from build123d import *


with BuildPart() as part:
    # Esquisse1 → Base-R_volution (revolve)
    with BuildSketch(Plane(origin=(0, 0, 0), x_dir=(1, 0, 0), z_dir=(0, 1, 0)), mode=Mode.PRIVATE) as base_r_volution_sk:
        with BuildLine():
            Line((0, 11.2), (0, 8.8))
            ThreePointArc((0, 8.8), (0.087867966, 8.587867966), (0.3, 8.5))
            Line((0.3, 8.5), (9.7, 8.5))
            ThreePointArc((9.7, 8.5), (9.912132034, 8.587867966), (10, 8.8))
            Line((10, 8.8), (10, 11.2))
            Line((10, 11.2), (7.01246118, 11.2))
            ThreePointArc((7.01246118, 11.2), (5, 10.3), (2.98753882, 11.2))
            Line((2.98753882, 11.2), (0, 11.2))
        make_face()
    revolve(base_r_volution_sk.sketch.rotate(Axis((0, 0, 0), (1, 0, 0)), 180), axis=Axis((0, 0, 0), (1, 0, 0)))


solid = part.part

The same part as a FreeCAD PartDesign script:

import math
import FreeCAD as App
import Part
import Sketcher
from FreeCAD import Vector
Q = App.Units.Quantity

doc = App.newDocument("Part")
body = doc.addObject("PartDesign::Body", "Body")

sketch1 = body.newObject("Sketcher::SketchObject", "Sketch")
sketch1.AttachmentSupport = (doc.getObject("XZ_Plane"), [""])
sketch1.MapMode = "FlatFace"
sketch1.addGeometry([
    Part.LineSegment(Vector(0, -11.2, 0), Vector(0, -8.8, 0)),
    Part.ArcOfCircle(Part.Circle(Vector(0.3, -8.8, 0), Vector(0, 0, 1), 0.3), math.radians(90), math.radians(180)),
    Part.LineSegment(Vector(0.3, -8.5, 0), Vector(9.7, -8.5, 0)),
    Part.ArcOfCircle(Part.Circle(Vector(9.7, -8.8, 0), Vector(0, 0, 1), 0.3), math.radians(0), math.radians(90)),
    Part.LineSegment(Vector(10, -8.8, 0), Vector(10, -11.2, 0)),
    Part.LineSegment(Vector(10, -11.2, 0), Vector(7.012461, -11.2, 0)),
    Part.ArcOfCircle(Part.Circle(Vector(5, -13, 0), Vector(0, 0, 1), 2.7), math.radians(41.810315), math.radians(138.189685)),
    Part.LineSegment(Vector(2.987539, -11.2, 0), Vector(0, -11.2, 0)),
], False)
sketch1.addConstraint([
    Sketcher.Constraint("Tangent", 0, 2, 1, 2),
    Sketcher.Constraint("Tangent", 1, 1, 2, 1),
    Sketcher.Constraint("Tangent", 2, 2, 3, 2),
    Sketcher.Constraint("Tangent", 3, 1, 4, 1),
    Sketcher.Constraint("Coincident", 4, 2, 5, 1),
    Sketcher.Constraint("Coincident", 5, 2, 6, 1),
    Sketcher.Constraint("Coincident", 6, 2, 7, 1),
    Sketcher.Constraint("Coincident", 7, 2, 0, 1),
    Sketcher.Constraint("Vertical", 0),
    Sketcher.Constraint("Horizontal", 2),
    Sketcher.Constraint("Vertical", 4),
    Sketcher.Constraint("Horizontal", 5),
    Sketcher.Constraint("Horizontal", 7),
    Sketcher.Constraint("Equal", 1, 3),
    Sketcher.Constraint("PointOnObject", 0, 2, -2),
    Sketcher.Constraint("Horizontal", 5, 2, 6, 2),
    Sketcher.Constraint("Equal", 5, 7),
    Sketcher.Constraint("Radius", 1, Q("0.3 mm")),
    Sketcher.Constraint("Radius", 6, Q("2.7 mm")),
    Sketcher.Constraint("DistanceX", 2, 1, 2, 2, Q("9.4 mm")),
    Sketcher.Constraint("DistanceY", 0, 1, 0, 2, Q("2.4 mm")),
    Sketcher.Constraint("DistanceY", 6, 3, -1, 1, Q("13 mm")),
    Sketcher.Constraint("DistanceY", 1, 3, -1, 1, Q("8.8 mm")),
])
revolution = body.newObject("PartDesign::Revolution", "Revolution")
revolution.Profile = sketch1
revolution.ReferenceAxis = (sketch1, ["H_Axis"])
revolution.Angle = 360

doc.recompute()
